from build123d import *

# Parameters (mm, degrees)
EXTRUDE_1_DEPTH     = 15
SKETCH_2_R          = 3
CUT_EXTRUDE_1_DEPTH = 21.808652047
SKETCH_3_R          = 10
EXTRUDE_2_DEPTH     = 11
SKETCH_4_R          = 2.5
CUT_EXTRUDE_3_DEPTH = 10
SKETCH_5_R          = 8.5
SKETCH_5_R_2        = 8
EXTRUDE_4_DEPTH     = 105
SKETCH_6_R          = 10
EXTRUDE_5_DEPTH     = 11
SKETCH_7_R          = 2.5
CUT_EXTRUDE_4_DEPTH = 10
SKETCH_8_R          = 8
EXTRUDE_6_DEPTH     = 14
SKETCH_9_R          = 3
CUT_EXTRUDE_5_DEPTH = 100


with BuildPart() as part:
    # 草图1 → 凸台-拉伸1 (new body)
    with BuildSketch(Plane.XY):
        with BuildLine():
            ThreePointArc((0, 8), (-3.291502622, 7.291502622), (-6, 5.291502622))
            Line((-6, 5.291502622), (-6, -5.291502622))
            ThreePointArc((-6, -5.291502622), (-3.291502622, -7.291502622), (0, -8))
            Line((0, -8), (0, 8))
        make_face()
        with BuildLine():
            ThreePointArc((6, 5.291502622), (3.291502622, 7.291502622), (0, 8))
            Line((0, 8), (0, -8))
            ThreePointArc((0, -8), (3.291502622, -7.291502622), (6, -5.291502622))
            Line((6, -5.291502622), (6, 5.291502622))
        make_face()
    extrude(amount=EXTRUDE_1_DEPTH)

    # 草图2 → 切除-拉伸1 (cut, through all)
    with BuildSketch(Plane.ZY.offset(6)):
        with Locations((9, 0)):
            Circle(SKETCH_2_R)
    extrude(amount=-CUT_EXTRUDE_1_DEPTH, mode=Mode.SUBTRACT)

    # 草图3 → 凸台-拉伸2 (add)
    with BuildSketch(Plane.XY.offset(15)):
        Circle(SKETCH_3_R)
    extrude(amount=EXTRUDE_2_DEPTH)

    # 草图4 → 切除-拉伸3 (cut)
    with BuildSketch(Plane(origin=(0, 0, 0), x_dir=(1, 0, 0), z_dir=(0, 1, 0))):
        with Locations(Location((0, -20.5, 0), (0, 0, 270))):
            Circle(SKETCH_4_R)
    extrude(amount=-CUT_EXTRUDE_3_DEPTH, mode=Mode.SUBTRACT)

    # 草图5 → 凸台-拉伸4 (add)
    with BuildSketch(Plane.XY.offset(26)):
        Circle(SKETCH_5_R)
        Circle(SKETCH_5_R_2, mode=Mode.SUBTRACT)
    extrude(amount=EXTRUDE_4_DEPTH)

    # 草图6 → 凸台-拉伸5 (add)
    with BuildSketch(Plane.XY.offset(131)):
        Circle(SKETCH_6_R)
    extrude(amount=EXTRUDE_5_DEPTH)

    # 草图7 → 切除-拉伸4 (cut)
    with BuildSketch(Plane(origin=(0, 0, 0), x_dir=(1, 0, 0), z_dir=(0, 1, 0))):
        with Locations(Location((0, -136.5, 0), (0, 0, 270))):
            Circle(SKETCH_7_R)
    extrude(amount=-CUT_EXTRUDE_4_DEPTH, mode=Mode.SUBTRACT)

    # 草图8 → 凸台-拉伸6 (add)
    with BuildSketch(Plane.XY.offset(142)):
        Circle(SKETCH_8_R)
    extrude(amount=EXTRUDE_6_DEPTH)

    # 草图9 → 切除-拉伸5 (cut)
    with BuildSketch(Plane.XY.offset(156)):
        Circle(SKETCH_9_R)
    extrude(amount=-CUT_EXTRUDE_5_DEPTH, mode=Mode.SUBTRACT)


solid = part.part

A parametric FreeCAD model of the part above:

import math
import FreeCAD as App
import Part
import Sketcher

V = App.Vector

doc = App.newDocument("Part")
body = doc.addObject("PartDesign::Body", "Body")

# Sketch on XY plane
sketch1 = body.newObject("Sketcher::SketchObject", "Sketch")
sketch1.AttachmentSupport = (doc.getObject("XY_Plane"), [""])
sketch1.MapMode = "FlatFace"
sketch1.addGeometry([
    Part.ArcOfCircle(Part.Circle(V(0, 0, 0), V(0, 0, 1), 8), math.radians(90), math.radians(139)),  # 0
    Part.LineSegment(V(-6, 5, 0), V(-6, -5, 0)),  # 1
    Part.ArcOfCircle(Part.Circle(V(0, 0, 0), V(0, 0, 1), 8), math.radians(-139), math.radians(-90)),  # 2
    Part.ArcOfCircle(Part.Circle(V(0, 0, 0), V(0, 0, 1), 8), math.radians(-90), math.radians(-41)),  # 3
    Part.LineSegment(V(6, -5, 0), V(6, 5, 0)),  # 4
    Part.ArcOfCircle(Part.Circle(V(0, 0, 0), V(0, 0, 1), 8), math.radians(41), math.radians(90)),  # 5
], False)
sketch1.addConstraint([
    Sketcher.Constraint("Coincident", 0, 2, 1, 1),
    Sketcher.Constraint("Coincident", 1, 2, 2, 1),
    Sketcher.Constraint("Tangent", 2, 2, 3, 1),
    Sketcher.Constraint("Coincident", 3, 2, 4, 1),
    Sketcher.Constraint("Coincident", 4, 2, 5, 1),
    Sketcher.Constraint("Tangent", 5, 2, 0, 1),
    Sketcher.Constraint("Vertical", 1),
    Sketcher.Constraint("Vertical", 4),
    Sketcher.Constraint("Coincident", 0, 3, -1, 1),
    Sketcher.Constraint("Coincident", 2, 3, -1, 1),
    Sketcher.Constraint("Equal", 0, 2),
    Sketcher.Constraint("Equal", 2, 3),
    Sketcher.Constraint("Equal", 3, 5),
    Sketcher.Constraint("PointOnObject", 2, 2, -2),
    Sketcher.Constraint("PointOnObject", 5, 2, -2),
    Sketcher.Constraint("Horizontal", 1, 2, 3, 2),
    Sketcher.Constraint("Radius", 0, 8.0),
    Sketcher.Constraint("DistanceX", 0, 2, -1, 1, 6.0),
])
pad1 = body.newObject("PartDesign::Pad", "Pad")
pad1.Profile = sketch1
pad1.Length = 15

# Sketch on YZ plane
sketch2 = body.newObject("Sketcher::SketchObject", "Sketch001")
sketch2.AttachmentSupport = (doc.getObject("YZ_Plane"), [""])
sketch2.MapMode = "FlatFace"
sketch2.AttachmentOffset = App.Placement(V(0, 0, -6), App.Rotation())
sketch2.addGeometry(Part.Circle(V(0, 9, 0), V(0, 0, 1), 3), False)
sketch2.addConstraint([
    Sketcher.Constraint("PointOnObject", 0, 3, -2),
    Sketcher.Constraint("Diameter", 0, 6.0),
    Sketcher.Constraint("DistanceY", -1, 1, 0, 3, 9.0),
])
pocket1 = body.newObject("PartDesign::Pocket", "Pocket")
pocket1.Profile = sketch2
pocket1.Type = "ThroughAll"
pocket1.Reversed = True

# Sketch on XY plane
sketch3 = body.newObject("Sketcher::SketchObject", "Sketch002")
sketch3.AttachmentSupport = (doc.getObject("XY_Plane"), [""])
sketch3.MapMode = "FlatFace"
sketch3.AttachmentOffset = App.Placement(V(0, 0, 15), App.Rotation())
sketch3.addGeometry(Part.Circle(V(0, 0, 0), V(0, 0, 1), 10), False)
sketch3.addConstraint([
    Sketcher.Constraint("Coincident", 0, 3, -1, 1),
    Sketcher.Constraint("Diameter", 0, 20.0),
])
pad2 = body.newObject("PartDesign::Pad", "Pad001")
pad2.Profile = sketch3
pad2.Length = 11

# Sketch on XZ plane
sketch4 = body.newObject("Sketcher::SketchObject", "Sketch003")
sketch4.AttachmentSupport = (doc.getObject("XZ_Plane"), [""])
sketch4.MapMode = "FlatFace"
sketch4.addGeometry(Part.Circle(V(0, 20.5, 0), V(0, 0, 1), 2.5), False)
sketch4.addConstraint([
    Sketcher.Constraint("PointOnObject", 0, 3, -2),
    Sketcher.Constraint("Diameter", 0, 5.0),
    Sketcher.Constraint("DistanceY", -1, 1, 0, 3, 20.5),
])
pocket2 = body.newObject("PartDesign::Pocket", "Pocket001")
pocket2.Profile = sketch4
pocket2.Length = 10
pocket2.Reversed = True

# Sketch on XY plane
sketch5 = body.newObject("Sketcher::SketchObject", "Sketch004")
sketch5.AttachmentSupport = (doc.getObject("XY_Plane"), [""])
sketch5.MapMode = "FlatFace"
sketch5.AttachmentOffset = App.Placement(V(0, 0, 26), App.Rotation())
sketch5.addGeometry([
    Part.Circle(V(0, 0, 0), V(0, 0, 1), 8),
    Part.Circle(V(0, 0, 0), V(0, 0, 1), 8),
], False)
sketch5.addConstraint([
    Sketcher.Constraint("Coincident", 0, 3, -1, 1),
    Sketcher.Constraint("Coincident", 1, 3, -1, 1),
    Sketcher.Constraint("Diameter", 0, 17.0),
    Sketcher.Constraint("Diameter", 1, 16.0),
])
pad3 = body.newObject("PartDesign::Pad", "Pad002")
pad3.Profile = sketch5
pad3.Length = 105

# Sketch on XY plane
sketch6 = body.newObject("Sketcher::SketchObject", "Sketch005")
sketch6.AttachmentSupport = (doc.getObject("XY_Plane"), [""])
sketch6.MapMode = "FlatFace"
sketch6.AttachmentOffset = App.Placement(V(0, 0, 131), App.Rotation())
sketch6.addGeometry(Part.Circle(V(0, 0, 0), V(0, 0, 1), 10), False)
sketch6.addConstraint([
    Sketcher.Constraint("Coincident", 0, 3, -1, 1),
    Sketcher.Constraint("Diameter", 0, 20.0),
])
pad4 = body.newObject("PartDesign::Pad", "Pad003")
pad4.Profile = sketch6
pad4.Length = 11

# Sketch on XZ plane
sketch7 = body.newObject("Sketcher::SketchObject", "Sketch006")
sketch7.AttachmentSupport = (doc.getObject("XZ_Plane"), [""])
sketch7.MapMode = "FlatFace"
sketch7.addGeometry(Part.Circle(V(0, 136.5, 0), V(0, 0, 1), 2.5), False)
sketch7.addConstraint([
    Sketcher.Constraint("PointOnObject", 0, 3, -2),
    Sketcher.Constraint("Diameter", 0, 5.0),
    Sketcher.Constraint("DistanceY", -1, 1, 0, 3, 136.5),
])
pocket3 = body.newObject("PartDesign::Pocket", "Pocket002")
pocket3.Profile = sketch7
pocket3.Length = 10
pocket3.Reversed = True

# Sketch on XY plane
sketch8 = body.newObject("Sketcher::SketchObject", "Sketch007")
sketch8.AttachmentSupport = (doc.getObject("XY_Plane"), [""])
sketch8.MapMode = "FlatFace"
sketch8.AttachmentOffset = App.Placement(V(0, 0, 142), App.Rotation())
sketch8.addGeometry(Part.Circle(V(0, 0, 0), V(0, 0, 1), 8), False)
sketch8.addConstraint([
    Sketcher.Constraint("Coincident", 0, 3, -1, 1),
    Sketcher.Constraint("Diameter", 0, 16.0),
])
pad5 = body.newObject("PartDesign::Pad", "Pad004")
pad5.Profile = sketch8
pad5.Length = 14

# Sketch on XY plane
sketch9 = body.newObject("Sketcher::SketchObject", "Sketch008")
sketch9.AttachmentSupport = (doc.getObject("XY_Plane"), [""])
sketch9.MapMode = "FlatFace"
sketch9.AttachmentOffset = App.Placement(V(0, 0, 156), App.Rotation())
sketch9.addGeometry(Part.Circle(V(0, 0, 0), V(0, 0, 1), 3), False)
sketch9.addConstraint([
    Sketcher.Constraint("Coincident", 0, 3, -1, 1),
    Sketcher.Constraint("Diameter", 0, 6.0),
])
pocket4 = body.newObject("PartDesign::Pocket", "Pocket003")
pocket4.Profile = sketch9
pocket4.Length = 100

doc.recompute()
